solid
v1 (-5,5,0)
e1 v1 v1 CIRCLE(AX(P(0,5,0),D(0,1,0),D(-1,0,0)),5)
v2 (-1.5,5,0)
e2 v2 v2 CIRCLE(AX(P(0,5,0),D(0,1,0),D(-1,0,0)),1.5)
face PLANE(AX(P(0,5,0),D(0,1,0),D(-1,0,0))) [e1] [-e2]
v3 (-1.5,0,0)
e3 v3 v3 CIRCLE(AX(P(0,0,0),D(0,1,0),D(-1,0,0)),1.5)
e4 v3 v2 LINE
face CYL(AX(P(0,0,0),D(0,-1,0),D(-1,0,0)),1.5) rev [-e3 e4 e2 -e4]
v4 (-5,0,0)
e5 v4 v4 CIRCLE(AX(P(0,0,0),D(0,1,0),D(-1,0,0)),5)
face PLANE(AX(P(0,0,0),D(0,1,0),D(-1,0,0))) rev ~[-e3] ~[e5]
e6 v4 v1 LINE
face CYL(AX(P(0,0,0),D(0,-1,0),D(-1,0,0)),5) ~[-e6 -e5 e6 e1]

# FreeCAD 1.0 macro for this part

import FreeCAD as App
import Part
import Sketcher

V = App.Vector
Q = App.Units.Quantity

doc = App.newDocument("Part")
params = doc.addObject("Spreadsheet::Sheet", "Params")
for row, (alias, value) in enumerate([
    ("sketch1_diameter", "10 mm"),
    ("sketch1_diameter2", "3 mm"),
    ("pad1_length", "5 mm"),
], start=1):
    params.set(f"A{row}", alias)
    params.set(f"B{row}", "=" + value)
    params.setAlias(f"B{row}", alias)

body = doc.addObject("PartDesign::Body", "Body")

# Sketch on XZ plane
sketch1 = body.newObject("Sketcher::SketchObject", "Sketch")
sketch1.AttachmentSupport = (doc.getObject("XZ_Plane"), [""])
sketch1.MapMode = "FlatFace"
sketch1.addGeometry([
    Part.Circle(V(0, 0, 0), V(0, 0, 1), 5),
    Part.Circle(V(0, 0, 0), V(0, 0, 1), 1.5),
], False)
sketch1.addConstraint([
    Sketcher.Constraint("Coincident", 0, 3, -1, 1),
    Sketcher.Constraint("Coincident", 1, 3, -1, 1),
    Sketcher.Constraint("Diameter", 0, Q("10 mm")),
    Sketcher.Constraint("Diameter", 1, Q("3 mm")),
])
sketch1.setExpression("Constraints[2]", "Params.sketch1_diameter")
sketch1.setExpression("Constraints[3]", "Params.sketch1_diameter2")
pad1 = body.newObject("PartDesign::Pad", "Pad")
pad1.Profile = sketch1
pad1.setExpression("Length", "Params.pad1_length")
pad1.Reversed = True

doc.recompute()
